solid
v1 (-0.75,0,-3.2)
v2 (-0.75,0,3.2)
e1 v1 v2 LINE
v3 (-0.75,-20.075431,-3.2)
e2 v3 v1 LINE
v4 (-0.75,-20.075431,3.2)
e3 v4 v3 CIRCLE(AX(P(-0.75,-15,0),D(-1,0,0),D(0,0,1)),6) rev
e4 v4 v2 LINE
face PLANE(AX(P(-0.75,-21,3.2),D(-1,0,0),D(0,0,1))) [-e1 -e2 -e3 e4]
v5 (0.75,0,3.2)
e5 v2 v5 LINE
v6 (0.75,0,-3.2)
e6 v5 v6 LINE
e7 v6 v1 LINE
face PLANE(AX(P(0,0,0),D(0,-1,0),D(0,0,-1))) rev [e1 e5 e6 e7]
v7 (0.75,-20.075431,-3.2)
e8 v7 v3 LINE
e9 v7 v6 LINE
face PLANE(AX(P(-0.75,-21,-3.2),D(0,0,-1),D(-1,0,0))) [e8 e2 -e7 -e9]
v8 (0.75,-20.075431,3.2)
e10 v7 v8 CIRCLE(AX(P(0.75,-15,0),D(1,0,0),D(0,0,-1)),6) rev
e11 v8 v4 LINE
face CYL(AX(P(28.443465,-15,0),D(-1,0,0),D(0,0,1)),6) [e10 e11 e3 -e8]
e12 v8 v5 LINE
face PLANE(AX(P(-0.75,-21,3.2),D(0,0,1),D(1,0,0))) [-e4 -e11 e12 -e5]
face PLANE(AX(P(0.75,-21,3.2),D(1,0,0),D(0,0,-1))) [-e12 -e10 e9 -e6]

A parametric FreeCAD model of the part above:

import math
import FreeCAD as App
import Part
import Sketcher
from FreeCAD import Vector
Q = App.Units.Quantity

doc = App.newDocument("Part")
body = doc.addObject("PartDesign::Body", "Body")

# Sketch on XZ plane
sketch1 = body.newObject("Sketcher::SketchObject", "Sketch")
sketch1.AttachmentSupport = (doc.getObject("XZ_Plane"), [""])
sketch1.MapMode = "FlatFace"
sketch1.addGeometry(Part.LineSegment(Vector(-0.8, -3.2, 0), Vector(-0.8, 3.2, 0)), False)
sketch1.addGeometry(Part.LineSegment(Vector(-0.8, 3.2, 0), Vector(0.8, 3.2, 0)), False)
sketch1.addGeometry(Part.LineSegment(Vector(0.8, 3.2, 0), Vector(0.8, -3.2, 0)), False)
sketch1.addGeometry(Part.LineSegment(Vector(0.8, -3.2, 0), Vector(-0.8, -3.2, 0)), False)
sketch1.addConstraint(Sketcher.Constraint("Coincident", 0, 2, 1, 1))
sketch1.addConstraint(Sketcher.Constraint("Coincident", 1, 2, 2, 1))
sketch1.addConstraint(Sketcher.Constraint("Coincident", 2, 2, 3, 1))
sketch1.addConstraint(Sketcher.Constraint("Coincident", 3, 2, 0, 1))
sketch1.addConstraint(Sketcher.Constraint("Vertical", 0))
sketch1.addConstraint(Sketcher.Constraint("Horizontal", 1))
sketch1.addConstraint(Sketcher.Constraint("Vertical", 2))
sketch1.addConstraint(Sketcher.Constraint("Horizontal", 3))
sketch1.addConstraint(Sketcher.Constraint("Symmetric", 0, 2, 2, 2, -1, 1))
sketch1.addConstraint(Sketcher.Constraint("DistanceX", 1, 1, 1, 2, Q("1.5 mm")))
sketch1.addConstraint(Sketcher.Constraint("DistanceY", 0, 1, 0, 2, Q("6.4 mm")))
pad1 = body.newObject("PartDesign::Pad", "Pad")
pad1.Profile = sketch1
pad1.Length = 21

# Sketch on YZ plane
sketch2 = body.newObject("Sketcher::SketchObject", "Sketch001")
sketch2.AttachmentSupport = (doc.getObject("YZ_Plane"), [""])
sketch2.MapMode = "FlatFace"
sketch2.addGeometry(Part.LineSegment(Vector(-20, 3, 0), Vector(8, 47, 0)), False)
sketch2.addGeometry(Part.LineSegment(Vector(8, 47, 0), Vector(-97, 47, 0)), False)
sketch2.addGeometry(Part.LineSegment(Vector(-97, 47, 0), Vector(-97, -47, 0)), False)
sketch2.addGeometry(Part.LineSegment(Vector(-97, -47, 0), Vector(8, -47, 0)), False)
sketch2.addGeometry(Part.LineSegment(Vector(8, -47, 0), Vector(-20, -3, 0)), False)
sketch2.addGeometry(Part.ArcOfCircle(Part.Circle(Vector(-15, 0, 0), Vector(0, 0, 1), 6), math.radians(148), math.radians(212)), False)
sketch2.addConstraint(Sketcher.Constraint("Coincident", 0, 2, 1, 1))
sketch2.addConstraint(Sketcher.Constraint("Coincident", 1, 2, 2, 1))
sketch2.addConstraint(Sketcher.Constraint("Coincident", 2, 2, 3, 1))
sketch2.addConstraint(Sketcher.Constraint("Coincident", 3, 2, 4, 1))
sketch2.addConstraint(Sketcher.Constraint("Tangent", 4, 2, 5, 2))
sketch2.addConstraint(Sketcher.Constraint("Tangent", 5, 1, 0, 1))
sketch2.addConstraint(Sketcher.Constraint("Horizontal", 1))
sketch2.addConstraint(Sketcher.Constraint("Vertical", 2))
sketch2.addConstraint(Sketcher.Constraint("Horizontal", 3))
sketch2.addConstraint(Sketcher.Constraint("Symmetric", 0, 2, 3, 2, -1))
sketch2.addConstraint(Sketcher.Constraint("PointOnObject", 5, 3, -1))
sketch2.addConstraint(Sketcher.Constraint("Radius", 5, Q("6 mm")))
sketch2.addConstraint(Sketcher.Constraint("DistanceX", 5, 3, -1, 1, Q("15 mm")))
sketch2.addConstraint(Sketcher.Constraint("DistanceY", 4, 2, -1, 1, Q("3.2 mm")))
sketch2.addConstraint(Sketcher.Constraint("DistanceX", 1, 2, 1, 1, Q("104.28361 mm")))
sketch2.addConstraint(Sketcher.Constraint("DistanceY", 2, 2, 2, 1, Q("94.614045 mm")))
pocket1 = body.newObject("PartDesign::Pocket", "Pocket")
pocket1.Profile = sketch2
pocket1.Type = "ThroughAll"
pocket1.Midplane = True

doc.recompute()
